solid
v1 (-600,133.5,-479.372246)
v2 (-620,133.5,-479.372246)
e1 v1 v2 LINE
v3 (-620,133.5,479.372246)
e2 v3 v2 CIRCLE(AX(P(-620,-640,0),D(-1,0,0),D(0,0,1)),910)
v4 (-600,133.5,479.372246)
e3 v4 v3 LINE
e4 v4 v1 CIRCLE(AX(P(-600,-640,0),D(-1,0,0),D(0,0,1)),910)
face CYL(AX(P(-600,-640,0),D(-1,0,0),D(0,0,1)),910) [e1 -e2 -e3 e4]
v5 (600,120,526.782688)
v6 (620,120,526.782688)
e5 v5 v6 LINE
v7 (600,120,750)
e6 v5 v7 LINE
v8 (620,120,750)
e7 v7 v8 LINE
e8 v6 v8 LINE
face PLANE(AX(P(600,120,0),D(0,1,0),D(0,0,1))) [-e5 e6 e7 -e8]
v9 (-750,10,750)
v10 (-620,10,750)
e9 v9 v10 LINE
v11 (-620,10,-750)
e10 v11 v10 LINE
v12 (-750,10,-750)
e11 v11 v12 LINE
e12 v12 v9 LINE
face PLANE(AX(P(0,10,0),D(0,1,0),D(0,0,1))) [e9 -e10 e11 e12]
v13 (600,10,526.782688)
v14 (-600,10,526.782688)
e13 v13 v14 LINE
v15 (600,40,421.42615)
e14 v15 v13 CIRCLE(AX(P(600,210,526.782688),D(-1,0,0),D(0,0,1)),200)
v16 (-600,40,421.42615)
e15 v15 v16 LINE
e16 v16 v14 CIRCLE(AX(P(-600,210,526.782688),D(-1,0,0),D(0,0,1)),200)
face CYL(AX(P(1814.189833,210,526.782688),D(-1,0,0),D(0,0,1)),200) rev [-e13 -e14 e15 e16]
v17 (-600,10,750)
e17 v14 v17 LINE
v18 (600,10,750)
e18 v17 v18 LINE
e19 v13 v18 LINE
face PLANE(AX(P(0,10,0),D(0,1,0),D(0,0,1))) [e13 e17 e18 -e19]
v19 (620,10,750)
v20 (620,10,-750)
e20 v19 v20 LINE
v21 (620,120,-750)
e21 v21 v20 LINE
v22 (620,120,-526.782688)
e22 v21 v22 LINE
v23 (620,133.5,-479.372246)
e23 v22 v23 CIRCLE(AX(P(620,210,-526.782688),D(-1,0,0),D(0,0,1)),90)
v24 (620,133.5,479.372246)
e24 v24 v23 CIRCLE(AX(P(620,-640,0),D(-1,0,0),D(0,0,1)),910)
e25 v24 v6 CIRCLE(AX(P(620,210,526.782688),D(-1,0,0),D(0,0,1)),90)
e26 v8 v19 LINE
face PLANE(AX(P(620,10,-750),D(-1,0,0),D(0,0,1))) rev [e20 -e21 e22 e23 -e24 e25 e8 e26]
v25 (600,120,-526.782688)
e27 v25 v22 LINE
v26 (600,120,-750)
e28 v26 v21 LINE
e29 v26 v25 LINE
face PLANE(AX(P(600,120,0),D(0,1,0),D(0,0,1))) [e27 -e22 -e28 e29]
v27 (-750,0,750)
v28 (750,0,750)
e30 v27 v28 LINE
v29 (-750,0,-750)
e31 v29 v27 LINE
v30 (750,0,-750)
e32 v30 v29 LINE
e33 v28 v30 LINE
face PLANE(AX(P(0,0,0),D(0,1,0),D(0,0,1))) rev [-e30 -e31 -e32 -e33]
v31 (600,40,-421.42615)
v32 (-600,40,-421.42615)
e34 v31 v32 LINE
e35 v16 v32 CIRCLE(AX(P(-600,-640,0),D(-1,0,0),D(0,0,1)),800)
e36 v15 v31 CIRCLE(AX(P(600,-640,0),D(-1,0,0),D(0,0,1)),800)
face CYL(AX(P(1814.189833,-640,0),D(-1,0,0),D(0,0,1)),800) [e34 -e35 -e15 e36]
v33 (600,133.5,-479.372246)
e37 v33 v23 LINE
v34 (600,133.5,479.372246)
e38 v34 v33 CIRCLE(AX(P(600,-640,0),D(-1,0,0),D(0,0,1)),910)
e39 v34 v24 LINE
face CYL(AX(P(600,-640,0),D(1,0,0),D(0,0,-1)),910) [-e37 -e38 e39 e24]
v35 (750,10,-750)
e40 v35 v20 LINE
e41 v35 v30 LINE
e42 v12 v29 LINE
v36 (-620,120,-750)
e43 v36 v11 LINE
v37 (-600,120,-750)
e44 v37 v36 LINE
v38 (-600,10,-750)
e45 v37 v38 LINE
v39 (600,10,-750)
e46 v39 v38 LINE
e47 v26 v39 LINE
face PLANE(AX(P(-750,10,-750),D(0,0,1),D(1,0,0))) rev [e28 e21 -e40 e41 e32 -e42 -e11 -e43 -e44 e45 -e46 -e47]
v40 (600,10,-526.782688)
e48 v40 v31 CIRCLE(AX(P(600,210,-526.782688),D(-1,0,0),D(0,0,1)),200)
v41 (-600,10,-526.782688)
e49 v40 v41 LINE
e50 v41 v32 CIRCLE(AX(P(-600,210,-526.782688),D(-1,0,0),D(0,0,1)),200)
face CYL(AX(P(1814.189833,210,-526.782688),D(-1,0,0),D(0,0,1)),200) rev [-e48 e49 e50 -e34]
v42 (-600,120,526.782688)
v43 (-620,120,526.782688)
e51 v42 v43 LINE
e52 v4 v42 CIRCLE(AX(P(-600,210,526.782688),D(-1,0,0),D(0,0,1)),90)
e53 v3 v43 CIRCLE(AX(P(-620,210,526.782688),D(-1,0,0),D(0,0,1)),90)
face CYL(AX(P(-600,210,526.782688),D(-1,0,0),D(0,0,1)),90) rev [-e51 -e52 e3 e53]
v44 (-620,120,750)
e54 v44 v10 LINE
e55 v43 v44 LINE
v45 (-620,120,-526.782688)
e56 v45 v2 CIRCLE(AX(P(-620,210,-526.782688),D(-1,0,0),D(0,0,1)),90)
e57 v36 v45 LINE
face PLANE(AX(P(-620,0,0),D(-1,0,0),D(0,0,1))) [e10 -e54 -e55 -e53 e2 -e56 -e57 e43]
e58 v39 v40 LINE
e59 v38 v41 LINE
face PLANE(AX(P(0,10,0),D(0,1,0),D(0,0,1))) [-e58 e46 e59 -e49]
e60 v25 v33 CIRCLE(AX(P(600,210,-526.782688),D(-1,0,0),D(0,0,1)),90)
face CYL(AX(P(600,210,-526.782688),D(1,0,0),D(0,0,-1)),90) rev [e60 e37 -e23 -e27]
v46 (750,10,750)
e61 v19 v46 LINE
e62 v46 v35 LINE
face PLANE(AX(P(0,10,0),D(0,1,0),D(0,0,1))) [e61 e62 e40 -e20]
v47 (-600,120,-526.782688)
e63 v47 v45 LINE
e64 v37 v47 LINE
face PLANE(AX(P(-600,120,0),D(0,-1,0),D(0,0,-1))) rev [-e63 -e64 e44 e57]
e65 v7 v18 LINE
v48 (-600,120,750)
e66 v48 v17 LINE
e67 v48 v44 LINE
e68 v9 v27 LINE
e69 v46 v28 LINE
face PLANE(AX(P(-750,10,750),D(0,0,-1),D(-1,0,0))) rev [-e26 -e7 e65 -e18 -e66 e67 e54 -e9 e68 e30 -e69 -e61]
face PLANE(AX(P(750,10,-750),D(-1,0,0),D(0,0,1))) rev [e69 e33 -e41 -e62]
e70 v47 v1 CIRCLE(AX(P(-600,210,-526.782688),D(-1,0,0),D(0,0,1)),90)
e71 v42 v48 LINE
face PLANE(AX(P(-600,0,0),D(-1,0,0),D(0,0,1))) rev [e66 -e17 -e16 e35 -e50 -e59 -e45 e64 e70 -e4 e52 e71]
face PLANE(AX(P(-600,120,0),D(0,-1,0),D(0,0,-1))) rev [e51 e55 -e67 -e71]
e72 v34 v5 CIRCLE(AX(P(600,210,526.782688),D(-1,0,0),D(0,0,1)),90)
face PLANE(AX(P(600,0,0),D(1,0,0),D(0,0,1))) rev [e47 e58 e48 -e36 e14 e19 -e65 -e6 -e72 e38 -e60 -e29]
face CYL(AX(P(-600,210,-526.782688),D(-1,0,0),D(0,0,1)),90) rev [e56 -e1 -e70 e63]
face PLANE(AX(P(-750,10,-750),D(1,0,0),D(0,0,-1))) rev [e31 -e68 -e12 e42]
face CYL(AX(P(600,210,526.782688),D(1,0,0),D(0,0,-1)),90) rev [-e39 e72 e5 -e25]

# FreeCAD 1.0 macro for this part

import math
import FreeCAD as App
import Part
import Sketcher
Q = App.Units.Quantity

doc = App.newDocument("Part")
body = doc.addObject("PartDesign::Body", "Body")

# Sketch on XZ plane
sketch1 = body.newObject("Sketcher::SketchObject", "Sketch")
sketch1.AttachmentSupport = (doc.getObject("XZ_Plane"), [""])
sketch1.MapMode = "FlatFace"
sketch1.addGeometry([
    Part.LineSegment(App.Vector(-750, -750, 0), App.Vector(-750, 750, 0)),
    Part.LineSegment(App.Vector(-750, 750, 0), App.Vector(750, 750, 0)),
    Part.LineSegment(App.Vector(750, 750, 0), App.Vector(750, -750, 0)),
    Part.LineSegment(App.Vector(750, -750, 0), App.Vector(-750, -750, 0)),
], False)
sketch1.addConstraint([
    Sketcher.Constraint("Coincident", 0, 2, 1, 1),
    Sketcher.Constraint("Coincident", 1, 2, 2, 1),
    Sketcher.Constraint("Coincident", 2, 2, 3, 1),
    Sketcher.Constraint("Coincident", 3, 2, 0, 1),
    Sketcher.Constraint("Vertical", 0),
    Sketcher.Constraint("Horizontal", 1),
    Sketcher.Constraint("Vertical", 2),
    Sketcher.Constraint("Horizontal", 3),
    Sketcher.Constraint("Symmetric", 0, 2, 2, 2, -1, 1),
    Sketcher.Constraint("Equal", 3, 0),
    Sketcher.Constraint("DistanceX", 1, 1, 1, 2, Q("1500 mm")),
])
pad1 = body.newObject("PartDesign::Pad", "Pad")
pad1.Profile = sketch1
pad1.Length = 10
pad1.Reversed = True

# Sketch on YZ plane
sketch2 = body.newObject("Sketcher::SketchObject", "Sketch001")
sketch2.AttachmentSupport = (doc.getObject("YZ_Plane"), [""])
sketch2.MapMode = "FlatFace"
sketch2.AttachmentOffset = App.Placement(App.Vector(0, 0, -620), App.Rotation())
sketch2.addGeometry([
    Part.ArcOfCircle(Part.Circle(App.Vector(210, -527, 0), App.Vector(0, 0, 1), 200), math.radians(148), math.radians(180)),
    Part.LineSegment(App.Vector(10, -527, 0), App.Vector(10, 527, 0)),
    Part.ArcOfCircle(Part.Circle(App.Vector(210, 527, 0), App.Vector(0, 0, 1), 200), math.radians(180), math.radians(212)),
    Part.ArcOfCircle(Part.Circle(App.Vector(-640, 0, 0), App.Vector(0, 0, 1), 800), math.radians(-32), math.radians(32)),
], False)
sketch2.addConstraint([
    Sketcher.Constraint("Tangent", 0, 2, 1, 1),
    Sketcher.Constraint("Tangent", 1, 2, 2, 1),
    Sketcher.Constraint("Tangent", 2, 2, 3, 2),
    Sketcher.Constraint("Tangent", 3, 1, 0, 1),
    Sketcher.Constraint("Vertical", 1),
    Sketcher.Constraint("Equal", 0, 2),
    Sketcher.Constraint("PointOnObject", 3, 3, -1),
    Sketcher.Constraint("Radius", 0, Q("200 mm")),
    Sketcher.Constraint("Radius", 3, Q("800 mm")),
    Sketcher.Constraint("DistanceX", -1, 1, 0, 3, Q("210 mm")),
    Sketcher.Constraint("DistanceX", 3, 3, -1, 1, Q("640 mm")),
])
pad2 = body.newObject("PartDesign::Pad", "Pad001")
pad2.Profile = sketch2
pad2.Length = 1240

# Sketch on YZ plane
sketch3 = body.newObject("Sketcher::SketchObject", "Sketch002")
sketch3.AttachmentSupport = (doc.getObject("YZ_Plane"), [""])
sketch3.MapMode = "FlatFace"
sketch3.AttachmentOffset = App.Placement(App.Vector(0, 0, -620), App.Rotation())
sketch3.addGeometry([
    Part.LineSegment(App.Vector(120, -750, 0), App.Vector(10, -750, 0)),  # 0
    Part.LineSegment(App.Vector(10, -750, 0), App.Vector(10, -527, 0)),  # 1
    Part.ArcOfCircle(Part.Circle(App.Vector(210, -527, 0), App.Vector(0, 0, 1), 200), math.radians(148), math.radians(180)),  # 2
    Part.ArcOfCircle(Part.Circle(App.Vector(-640, 0, 0), App.Vector(0, 0, 1), 800), math.radians(-31.79), math.radians(-18.19)),  # 3
    Part.ArcOfCircle(Part.Circle(App.Vector(-640, 0, 0), App.Vector(0, 0, 1), 800), math.radians(-18), math.radians(18)),  # 4
    Part.ArcOfCircle(Part.Circle(App.Vector(-640, 0, 0), App.Vector(0, 0, 1), 800), math.radians(18.19), math.radians(31.79)),  # 5
    Part.ArcOfCircle(Part.Circle(App.Vector(210, 527, 0), App.Vector(0, 0, 1), 200), math.radians(180), math.radians(212)),  # 6
    Part.LineSegment(App.Vector(10, 527, 0), App.Vector(10, 750, 0)),  # 7
    Part.LineSegment(App.Vector(10, 750, 0), App.Vector(120, 750, 0)),  # 8
    Part.LineSegment(App.Vector(120, 750, 0), App.Vector(120, 527, 0)),  # 9
    Part.ArcOfCircle(Part.Circle(App.Vector(210, 527, 0), App.Vector(0, 0, 1), 90), math.radians(180), math.radians(212)),  # 10
    Part.ArcOfCircle(Part.Circle(App.Vector(-640, 0, 0), App.Vector(0, 0, 1), 910), math.radians(-32), math.radians(32)),  # 11
    Part.ArcOfCircle(Part.Circle(App.Vector(210, -527, 0), App.Vector(0, 0, 1), 90), math.radians(148), math.radians(180)),  # 12
    Part.LineSegment(App.Vector(120, -527, 0), App.Vector(120, -750, 0)),  # 13
], False)
sketch3.addConstraint([
    Sketcher.Constraint("Coincident", 0, 2, 1, 1),
    Sketcher.Constraint("Tangent", 1, 2, 2, 2),
    Sketcher.Constraint("Tangent", 2, 1, 3, 1),
    Sketcher.Constraint("Coincident", 3, 2, 4, 1),
    Sketcher.Constraint("Coincident", 4, 2, 5, 1),
    Sketcher.Constraint("Tangent", 5, 2, 6, 2),
    Sketcher.Constraint("Tangent", 6, 1, 7, 1),
    Sketcher.Constraint("Coincident", 7, 2, 8, 1),
    Sketcher.Constraint("Coincident", 8, 2, 9, 1),
    Sketcher.Constraint("Tangent", 9, 2, 10, 1),
    Sketcher.Constraint("Tangent", 10, 2, 11, 2),
    Sketcher.Constraint("Tangent", 11, 1, 12, 1),
    Sketcher.Constraint("Tangent", 12, 2, 13, 1),
    Sketcher.Constraint("Coincident", 13, 2, 0, 1),
    Sketcher.Constraint("Horizontal", 0),
    Sketcher.Constraint("Vertical", 1),
    Sketcher.Constraint("Vertical", 7),
    Sketcher.Constraint("Horizontal", 8),
    Sketcher.Constraint("Vertical", 9),
    Sketcher.Constraint("Vertical", 13),
    Sketcher.Constraint("Coincident", 4, 3, 3, 3),
    Sketcher.Constraint("Coincident", 5, 3, 3, 3),
    Sketcher.Constraint("Coincident", 10, 3, 6, 3),
    Sketcher.Constraint("Coincident", 11, 3, 3, 3),
    Sketcher.Constraint("Coincident", 12, 3, 2, 3),
    Sketcher.Constraint("Equal", 2, 6),
    Sketcher.Constraint("Symmetric", 2, 3, 6, 3, -1),
    Sketcher.Constraint("Vertical", 3, 2, 4, 2),
    Sketcher.Constraint("Vertical", 4, 2, 8, 2),
    Sketcher.Constraint("Equal", 1, 7),
    Sketcher.Constraint("Radius", 2, Q("200 mm")),
    Sketcher.Constraint("Radius", 3, Q("800 mm")),
    Sketcher.Constraint("Radius", 10, Q("90 mm")),
    Sketcher.Constraint("DistanceX", -1, 1, 2, 3, Q("210 mm")),
    Sketcher.Constraint("DistanceX", 3, 3, -1, 1, Q("640 mm")),
    Sketcher.Constraint("DistanceY", 0, 2, -1, 1, Q("750 mm")),
])
pad3 = body.newObject("PartDesign::Pad", "Pad002")
pad3.Profile = sketch3
pad3.Length = 20
doc.recompute()

mirrored = body.newObject("PartDesign::Mirrored", "Mirrored")
mirrored.Originals = [pad3]
mirrored.MirrorPlane = (doc.getObject("YZ_Plane"), [""])
body.Tip = mirrored

doc.recompute()
